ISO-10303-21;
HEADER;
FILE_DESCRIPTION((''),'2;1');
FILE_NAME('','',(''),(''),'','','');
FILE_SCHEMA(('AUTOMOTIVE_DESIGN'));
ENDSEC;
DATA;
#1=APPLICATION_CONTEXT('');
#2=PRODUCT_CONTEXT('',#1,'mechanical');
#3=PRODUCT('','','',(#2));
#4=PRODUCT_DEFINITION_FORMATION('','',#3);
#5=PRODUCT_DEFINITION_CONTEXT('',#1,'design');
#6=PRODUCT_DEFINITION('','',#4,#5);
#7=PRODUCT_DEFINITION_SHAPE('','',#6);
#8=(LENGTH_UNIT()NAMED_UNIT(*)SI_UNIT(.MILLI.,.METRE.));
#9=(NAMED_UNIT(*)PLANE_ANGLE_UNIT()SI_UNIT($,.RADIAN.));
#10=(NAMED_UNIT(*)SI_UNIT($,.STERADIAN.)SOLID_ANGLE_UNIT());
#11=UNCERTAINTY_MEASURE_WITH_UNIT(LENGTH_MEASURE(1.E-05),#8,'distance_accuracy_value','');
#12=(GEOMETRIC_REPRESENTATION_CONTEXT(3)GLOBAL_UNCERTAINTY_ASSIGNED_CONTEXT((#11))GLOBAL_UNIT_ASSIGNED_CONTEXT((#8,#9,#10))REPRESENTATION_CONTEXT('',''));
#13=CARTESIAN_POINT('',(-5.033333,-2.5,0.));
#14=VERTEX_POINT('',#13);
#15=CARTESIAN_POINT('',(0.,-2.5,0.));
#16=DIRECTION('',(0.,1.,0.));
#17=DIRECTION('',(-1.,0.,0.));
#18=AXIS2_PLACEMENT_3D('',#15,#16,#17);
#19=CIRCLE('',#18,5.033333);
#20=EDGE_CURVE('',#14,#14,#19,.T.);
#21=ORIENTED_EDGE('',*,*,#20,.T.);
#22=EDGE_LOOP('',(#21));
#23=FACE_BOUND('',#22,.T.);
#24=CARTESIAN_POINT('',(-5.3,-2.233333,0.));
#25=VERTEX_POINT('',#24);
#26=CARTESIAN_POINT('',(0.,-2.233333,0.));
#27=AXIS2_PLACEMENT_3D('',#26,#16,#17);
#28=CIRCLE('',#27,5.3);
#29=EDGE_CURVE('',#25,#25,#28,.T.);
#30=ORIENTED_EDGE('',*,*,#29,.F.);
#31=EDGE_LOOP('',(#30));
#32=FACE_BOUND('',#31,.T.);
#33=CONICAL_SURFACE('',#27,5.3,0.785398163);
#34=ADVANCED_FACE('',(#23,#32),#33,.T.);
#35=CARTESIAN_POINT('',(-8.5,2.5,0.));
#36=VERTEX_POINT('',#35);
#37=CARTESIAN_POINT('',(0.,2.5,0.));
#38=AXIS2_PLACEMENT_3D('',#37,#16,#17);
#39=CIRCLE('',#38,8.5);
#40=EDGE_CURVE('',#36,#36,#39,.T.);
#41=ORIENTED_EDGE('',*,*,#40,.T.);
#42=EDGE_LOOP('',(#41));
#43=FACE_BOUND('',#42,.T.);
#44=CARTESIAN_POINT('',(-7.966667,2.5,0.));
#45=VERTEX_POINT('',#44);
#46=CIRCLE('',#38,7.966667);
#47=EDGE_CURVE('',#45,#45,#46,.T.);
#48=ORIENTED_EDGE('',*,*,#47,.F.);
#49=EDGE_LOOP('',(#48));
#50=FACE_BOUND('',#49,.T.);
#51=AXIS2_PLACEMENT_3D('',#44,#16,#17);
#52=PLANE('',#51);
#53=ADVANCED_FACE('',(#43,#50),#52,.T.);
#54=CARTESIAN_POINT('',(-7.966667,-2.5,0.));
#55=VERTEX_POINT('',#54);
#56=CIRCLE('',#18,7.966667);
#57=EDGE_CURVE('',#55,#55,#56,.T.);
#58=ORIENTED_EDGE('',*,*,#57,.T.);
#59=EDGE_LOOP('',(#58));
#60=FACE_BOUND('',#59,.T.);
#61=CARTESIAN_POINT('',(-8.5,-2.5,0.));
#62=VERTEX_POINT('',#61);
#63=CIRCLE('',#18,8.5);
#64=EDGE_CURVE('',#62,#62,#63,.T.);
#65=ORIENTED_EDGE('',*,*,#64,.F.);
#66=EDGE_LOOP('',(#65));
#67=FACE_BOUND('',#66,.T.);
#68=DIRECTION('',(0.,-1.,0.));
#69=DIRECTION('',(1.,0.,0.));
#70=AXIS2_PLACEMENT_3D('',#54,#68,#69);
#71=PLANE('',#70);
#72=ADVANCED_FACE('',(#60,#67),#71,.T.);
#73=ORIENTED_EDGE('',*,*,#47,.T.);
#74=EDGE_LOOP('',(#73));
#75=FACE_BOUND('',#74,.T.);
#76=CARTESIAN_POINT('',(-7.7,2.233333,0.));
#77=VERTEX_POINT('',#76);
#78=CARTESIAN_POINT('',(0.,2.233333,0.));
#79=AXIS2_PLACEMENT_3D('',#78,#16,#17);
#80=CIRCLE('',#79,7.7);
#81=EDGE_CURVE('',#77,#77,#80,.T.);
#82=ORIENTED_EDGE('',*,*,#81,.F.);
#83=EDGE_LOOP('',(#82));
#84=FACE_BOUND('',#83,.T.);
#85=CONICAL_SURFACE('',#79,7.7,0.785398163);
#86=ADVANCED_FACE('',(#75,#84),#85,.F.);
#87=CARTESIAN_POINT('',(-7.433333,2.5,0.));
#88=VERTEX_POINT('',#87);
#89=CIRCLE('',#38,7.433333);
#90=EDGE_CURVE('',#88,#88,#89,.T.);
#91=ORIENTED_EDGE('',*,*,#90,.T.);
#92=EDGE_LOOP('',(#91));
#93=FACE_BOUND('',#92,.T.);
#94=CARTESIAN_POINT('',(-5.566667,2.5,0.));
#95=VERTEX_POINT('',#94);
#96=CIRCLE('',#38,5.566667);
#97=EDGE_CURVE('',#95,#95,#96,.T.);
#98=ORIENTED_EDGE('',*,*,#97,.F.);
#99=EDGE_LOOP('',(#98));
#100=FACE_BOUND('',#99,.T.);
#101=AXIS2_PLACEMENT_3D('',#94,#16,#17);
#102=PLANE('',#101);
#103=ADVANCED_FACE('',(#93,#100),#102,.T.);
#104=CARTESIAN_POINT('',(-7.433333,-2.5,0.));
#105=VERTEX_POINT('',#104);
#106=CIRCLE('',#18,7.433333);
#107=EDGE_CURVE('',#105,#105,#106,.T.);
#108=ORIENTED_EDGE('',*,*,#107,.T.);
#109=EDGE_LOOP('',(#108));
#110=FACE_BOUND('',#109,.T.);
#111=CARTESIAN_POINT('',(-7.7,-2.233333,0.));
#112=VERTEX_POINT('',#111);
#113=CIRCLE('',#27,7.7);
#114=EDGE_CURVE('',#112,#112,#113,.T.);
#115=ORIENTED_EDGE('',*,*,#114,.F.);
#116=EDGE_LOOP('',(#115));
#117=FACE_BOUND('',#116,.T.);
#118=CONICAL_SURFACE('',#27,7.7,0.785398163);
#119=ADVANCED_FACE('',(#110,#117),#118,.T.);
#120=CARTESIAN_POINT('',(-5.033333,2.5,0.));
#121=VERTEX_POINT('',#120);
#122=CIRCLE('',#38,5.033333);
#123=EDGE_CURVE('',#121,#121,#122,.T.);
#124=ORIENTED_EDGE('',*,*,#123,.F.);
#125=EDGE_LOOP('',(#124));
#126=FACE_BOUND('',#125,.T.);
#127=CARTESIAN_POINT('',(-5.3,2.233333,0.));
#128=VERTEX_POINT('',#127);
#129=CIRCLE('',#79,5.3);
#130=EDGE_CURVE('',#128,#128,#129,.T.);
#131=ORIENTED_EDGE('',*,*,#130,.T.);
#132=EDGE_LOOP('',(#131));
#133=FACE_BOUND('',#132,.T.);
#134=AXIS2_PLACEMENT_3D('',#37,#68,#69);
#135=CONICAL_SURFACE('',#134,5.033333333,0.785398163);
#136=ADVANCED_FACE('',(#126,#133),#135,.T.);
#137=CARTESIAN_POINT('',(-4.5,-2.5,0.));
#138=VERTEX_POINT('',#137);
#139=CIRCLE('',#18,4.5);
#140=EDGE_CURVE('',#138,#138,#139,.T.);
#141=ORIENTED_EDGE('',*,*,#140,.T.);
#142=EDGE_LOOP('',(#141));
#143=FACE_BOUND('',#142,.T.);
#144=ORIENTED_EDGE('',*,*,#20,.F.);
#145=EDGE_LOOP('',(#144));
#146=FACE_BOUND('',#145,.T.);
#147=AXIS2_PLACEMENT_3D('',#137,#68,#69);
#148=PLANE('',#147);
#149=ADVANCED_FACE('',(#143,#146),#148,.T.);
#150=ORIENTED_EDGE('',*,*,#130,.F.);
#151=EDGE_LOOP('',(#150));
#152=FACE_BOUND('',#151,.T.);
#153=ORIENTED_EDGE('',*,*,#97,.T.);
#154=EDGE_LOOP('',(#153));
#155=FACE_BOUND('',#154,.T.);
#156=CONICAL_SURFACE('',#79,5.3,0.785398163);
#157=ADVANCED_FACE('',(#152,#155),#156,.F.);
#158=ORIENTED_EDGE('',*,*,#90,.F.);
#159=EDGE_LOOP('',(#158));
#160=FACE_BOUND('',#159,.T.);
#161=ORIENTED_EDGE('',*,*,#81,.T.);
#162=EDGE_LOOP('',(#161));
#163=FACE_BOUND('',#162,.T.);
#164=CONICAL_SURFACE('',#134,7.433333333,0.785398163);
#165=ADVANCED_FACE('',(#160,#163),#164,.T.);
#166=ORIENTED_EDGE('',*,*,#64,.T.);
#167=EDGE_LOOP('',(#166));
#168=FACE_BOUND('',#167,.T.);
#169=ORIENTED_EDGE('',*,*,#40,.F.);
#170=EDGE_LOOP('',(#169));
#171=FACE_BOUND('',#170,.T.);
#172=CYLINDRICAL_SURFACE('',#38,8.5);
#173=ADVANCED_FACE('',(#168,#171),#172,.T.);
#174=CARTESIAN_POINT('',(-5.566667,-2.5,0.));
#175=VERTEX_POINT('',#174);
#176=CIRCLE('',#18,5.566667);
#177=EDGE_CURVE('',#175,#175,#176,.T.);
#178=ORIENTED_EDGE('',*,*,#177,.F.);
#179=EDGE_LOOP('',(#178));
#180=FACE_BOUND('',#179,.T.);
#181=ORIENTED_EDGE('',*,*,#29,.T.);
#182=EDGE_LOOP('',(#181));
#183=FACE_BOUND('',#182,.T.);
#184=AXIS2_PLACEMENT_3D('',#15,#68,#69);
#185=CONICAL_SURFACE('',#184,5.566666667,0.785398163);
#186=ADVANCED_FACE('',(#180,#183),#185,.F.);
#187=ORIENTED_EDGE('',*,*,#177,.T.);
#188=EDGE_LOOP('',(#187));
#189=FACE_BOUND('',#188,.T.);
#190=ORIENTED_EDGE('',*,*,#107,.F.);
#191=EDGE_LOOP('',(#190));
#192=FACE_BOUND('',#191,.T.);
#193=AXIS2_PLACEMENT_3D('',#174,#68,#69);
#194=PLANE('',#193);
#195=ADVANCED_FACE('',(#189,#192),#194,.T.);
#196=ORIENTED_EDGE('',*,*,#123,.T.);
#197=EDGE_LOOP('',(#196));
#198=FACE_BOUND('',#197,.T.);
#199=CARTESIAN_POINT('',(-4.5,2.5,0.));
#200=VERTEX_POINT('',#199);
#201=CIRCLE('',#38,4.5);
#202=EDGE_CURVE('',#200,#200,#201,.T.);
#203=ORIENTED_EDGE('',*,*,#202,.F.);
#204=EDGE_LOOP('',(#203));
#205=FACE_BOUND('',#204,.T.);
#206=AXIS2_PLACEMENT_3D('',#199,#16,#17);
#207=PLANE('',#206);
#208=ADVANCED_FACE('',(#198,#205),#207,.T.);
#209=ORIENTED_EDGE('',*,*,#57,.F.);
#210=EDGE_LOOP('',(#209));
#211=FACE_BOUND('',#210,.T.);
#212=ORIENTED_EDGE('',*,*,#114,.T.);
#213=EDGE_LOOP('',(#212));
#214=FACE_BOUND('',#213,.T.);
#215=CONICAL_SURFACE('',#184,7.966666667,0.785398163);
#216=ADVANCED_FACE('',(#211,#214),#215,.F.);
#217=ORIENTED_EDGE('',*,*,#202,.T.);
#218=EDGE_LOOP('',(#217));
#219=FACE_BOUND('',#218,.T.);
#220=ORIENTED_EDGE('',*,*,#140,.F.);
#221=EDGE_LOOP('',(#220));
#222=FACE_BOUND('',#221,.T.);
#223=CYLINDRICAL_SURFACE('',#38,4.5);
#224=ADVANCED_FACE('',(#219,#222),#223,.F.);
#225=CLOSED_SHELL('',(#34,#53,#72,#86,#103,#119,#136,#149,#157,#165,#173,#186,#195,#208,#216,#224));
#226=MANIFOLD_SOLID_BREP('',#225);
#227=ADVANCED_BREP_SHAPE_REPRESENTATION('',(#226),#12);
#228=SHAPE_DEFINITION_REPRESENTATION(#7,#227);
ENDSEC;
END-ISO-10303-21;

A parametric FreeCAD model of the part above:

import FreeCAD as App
import Part
import Sketcher
from FreeCAD import Vector
Q = App.Units.Quantity

doc = App.newDocument("Part")
body = doc.addObject("PartDesign::Body", "Body")

sketch1 = body.newObject("Sketcher::SketchObject", "Sketch")
sketch1.AttachmentSupport = (doc.getObject("XY_Plane"), [""])
sketch1.MapMode = "FlatFace"
sketch1.addGeometry([
    Part.LineSegment(Vector(-4.5, 2.5, 0), Vector(-5.03, 2.5, 0)),
    Part.LineSegment(Vector(-5.03, 2.5, 0), Vector(-5.3, 2.23, 0)),
    Part.LineSegment(Vector(-5.3, 2.23, 0), Vector(-5.57, 2.5, 0)),
    Part.LineSegment(Vector(-5.57, 2.5, 0), Vector(-7.43, 2.5, 0)),
    Part.LineSegment(Vector(-7.43, 2.5, 0), Vector(-7.7, 2.23, 0)),
    Part.LineSegment(Vector(-7.7, 2.23, 0), Vector(-7.97, 2.5, 0)),
    Part.LineSegment(Vector(-7.97, 2.5, 0), Vector(-8.5, 2.5, 0)),
    Part.LineSegment(Vector(-8.5, 2.5, 0), Vector(-8.5, -2.5, 0)),
    Part.LineSegment(Vector(-8.5, -2.5, 0), Vector(-7.97, -2.5, 0)),
    Part.LineSegment(Vector(-7.97, -2.5, 0), Vector(-7.7, -2.23, 0)),
    Part.LineSegment(Vector(-7.7, -2.23, 0), Vector(-7.43, -2.5, 0)),
    Part.LineSegment(Vector(-7.43, -2.5, 0), Vector(-5.57, -2.5, 0)),
    Part.LineSegment(Vector(-5.57, -2.5, 0), Vector(-5.3, -2.23, 0)),
    Part.LineSegment(Vector(-5.3, -2.23, 0), Vector(-5.03, -2.5, 0)),
    Part.LineSegment(Vector(-5.03, -2.5, 0), Vector(-4.5, -2.5, 0)),
    Part.LineSegment(Vector(-4.5, -2.5, 0), Vector(-4.5, 2.5, 0)),
], False)
sketch1.addConstraint([
    Sketcher.Constraint("Coincident", 0, 2, 1, 1),
    Sketcher.Constraint("Coincident", 1, 2, 2, 1),
    Sketcher.Constraint("Coincident", 2, 2, 3, 1),
    Sketcher.Constraint("Coincident", 3, 2, 4, 1),
    Sketcher.Constraint("Coincident", 4, 2, 5, 1),
    Sketcher.Constraint("Coincident", 5, 2, 6, 1),
    Sketcher.Constraint("Coincident", 6, 2, 7, 1),
    Sketcher.Constraint("Coincident", 7, 2, 8, 1),
    Sketcher.Constraint("Coincident", 8, 2, 9, 1),
    Sketcher.Constraint("Coincident", 9, 2, 10, 1),
    Sketcher.Constraint("Coincident", 10, 2, 11, 1),
    Sketcher.Constraint("Coincident", 11, 2, 12, 1),
    Sketcher.Constraint("Coincident", 12, 2, 13, 1),
    Sketcher.Constraint("Coincident", 13, 2, 14, 1),
    Sketcher.Constraint("Coincident", 14, 2, 15, 1),
    Sketcher.Constraint("Coincident", 15, 2, 0, 1),
    Sketcher.Constraint("Horizontal", 0),
    Sketcher.Constraint("Horizontal", 3),
    Sketcher.Constraint("Horizontal", 6),
    Sketcher.Constraint("Vertical", 7),
    Sketcher.Constraint("Horizontal", 8),
    Sketcher.Constraint("Horizontal", 11),
    Sketcher.Constraint("Horizontal", 14),
    Sketcher.Constraint("Vertical", 15),
    Sketcher.Constraint("Symmetric", 5, 2, 8, 2, -1),
    Sketcher.Constraint("Symmetric", 4, 2, 9, 2, -1),
    Sketcher.Constraint("Symmetric", 3, 2, 10, 2, -1),
    Sketcher.Constraint("Symmetric", 1, 2, 12, 2, -1),
    Sketcher.Constraint("Symmetric", 0, 2, 13, 2, -1),
    Sketcher.Constraint("Perpendicular", 1, 2),
    Sketcher.Constraint("Perpendicular", 2, 4),
    Sketcher.Constraint("Perpendicular", 4, 5),
    Sketcher.Constraint("Perpendicular", 5, 9),
    Sketcher.Constraint("Perpendicular", 10, 12),
    Sketcher.Constraint("Horizontal", 0, 2, 2, 2),
    Sketcher.Constraint("Horizontal", 1, 2, 4, 2),
    Sketcher.Constraint("Horizontal", 3, 2, 5, 2),
    Sketcher.Constraint("Equal", 0, 6),
    Sketcher.Constraint("DistanceY", 7, 2, 7, 1, Q("5 mm")),
    Sketcher.Constraint("DistanceX", 1, 2, -1, 1, Q("5.3 mm")),
    Sketcher.Constraint("DistanceX", 4, 2, -1, 1, Q("7.7 mm")),
    Sketcher.Constraint("DistanceX", 6, 2, -1, 1, Q("8.5 mm")),
    Sketcher.Constraint("DistanceX", 0, 2, 0, 1, Q("0.533333 mm")),
])
revolution = body.newObject("PartDesign::Revolution", "Revolution")
revolution.Profile = sketch1
revolution.ReferenceAxis = (sketch1, ["V_Axis"])
revolution.Angle = 360

doc.recompute()
